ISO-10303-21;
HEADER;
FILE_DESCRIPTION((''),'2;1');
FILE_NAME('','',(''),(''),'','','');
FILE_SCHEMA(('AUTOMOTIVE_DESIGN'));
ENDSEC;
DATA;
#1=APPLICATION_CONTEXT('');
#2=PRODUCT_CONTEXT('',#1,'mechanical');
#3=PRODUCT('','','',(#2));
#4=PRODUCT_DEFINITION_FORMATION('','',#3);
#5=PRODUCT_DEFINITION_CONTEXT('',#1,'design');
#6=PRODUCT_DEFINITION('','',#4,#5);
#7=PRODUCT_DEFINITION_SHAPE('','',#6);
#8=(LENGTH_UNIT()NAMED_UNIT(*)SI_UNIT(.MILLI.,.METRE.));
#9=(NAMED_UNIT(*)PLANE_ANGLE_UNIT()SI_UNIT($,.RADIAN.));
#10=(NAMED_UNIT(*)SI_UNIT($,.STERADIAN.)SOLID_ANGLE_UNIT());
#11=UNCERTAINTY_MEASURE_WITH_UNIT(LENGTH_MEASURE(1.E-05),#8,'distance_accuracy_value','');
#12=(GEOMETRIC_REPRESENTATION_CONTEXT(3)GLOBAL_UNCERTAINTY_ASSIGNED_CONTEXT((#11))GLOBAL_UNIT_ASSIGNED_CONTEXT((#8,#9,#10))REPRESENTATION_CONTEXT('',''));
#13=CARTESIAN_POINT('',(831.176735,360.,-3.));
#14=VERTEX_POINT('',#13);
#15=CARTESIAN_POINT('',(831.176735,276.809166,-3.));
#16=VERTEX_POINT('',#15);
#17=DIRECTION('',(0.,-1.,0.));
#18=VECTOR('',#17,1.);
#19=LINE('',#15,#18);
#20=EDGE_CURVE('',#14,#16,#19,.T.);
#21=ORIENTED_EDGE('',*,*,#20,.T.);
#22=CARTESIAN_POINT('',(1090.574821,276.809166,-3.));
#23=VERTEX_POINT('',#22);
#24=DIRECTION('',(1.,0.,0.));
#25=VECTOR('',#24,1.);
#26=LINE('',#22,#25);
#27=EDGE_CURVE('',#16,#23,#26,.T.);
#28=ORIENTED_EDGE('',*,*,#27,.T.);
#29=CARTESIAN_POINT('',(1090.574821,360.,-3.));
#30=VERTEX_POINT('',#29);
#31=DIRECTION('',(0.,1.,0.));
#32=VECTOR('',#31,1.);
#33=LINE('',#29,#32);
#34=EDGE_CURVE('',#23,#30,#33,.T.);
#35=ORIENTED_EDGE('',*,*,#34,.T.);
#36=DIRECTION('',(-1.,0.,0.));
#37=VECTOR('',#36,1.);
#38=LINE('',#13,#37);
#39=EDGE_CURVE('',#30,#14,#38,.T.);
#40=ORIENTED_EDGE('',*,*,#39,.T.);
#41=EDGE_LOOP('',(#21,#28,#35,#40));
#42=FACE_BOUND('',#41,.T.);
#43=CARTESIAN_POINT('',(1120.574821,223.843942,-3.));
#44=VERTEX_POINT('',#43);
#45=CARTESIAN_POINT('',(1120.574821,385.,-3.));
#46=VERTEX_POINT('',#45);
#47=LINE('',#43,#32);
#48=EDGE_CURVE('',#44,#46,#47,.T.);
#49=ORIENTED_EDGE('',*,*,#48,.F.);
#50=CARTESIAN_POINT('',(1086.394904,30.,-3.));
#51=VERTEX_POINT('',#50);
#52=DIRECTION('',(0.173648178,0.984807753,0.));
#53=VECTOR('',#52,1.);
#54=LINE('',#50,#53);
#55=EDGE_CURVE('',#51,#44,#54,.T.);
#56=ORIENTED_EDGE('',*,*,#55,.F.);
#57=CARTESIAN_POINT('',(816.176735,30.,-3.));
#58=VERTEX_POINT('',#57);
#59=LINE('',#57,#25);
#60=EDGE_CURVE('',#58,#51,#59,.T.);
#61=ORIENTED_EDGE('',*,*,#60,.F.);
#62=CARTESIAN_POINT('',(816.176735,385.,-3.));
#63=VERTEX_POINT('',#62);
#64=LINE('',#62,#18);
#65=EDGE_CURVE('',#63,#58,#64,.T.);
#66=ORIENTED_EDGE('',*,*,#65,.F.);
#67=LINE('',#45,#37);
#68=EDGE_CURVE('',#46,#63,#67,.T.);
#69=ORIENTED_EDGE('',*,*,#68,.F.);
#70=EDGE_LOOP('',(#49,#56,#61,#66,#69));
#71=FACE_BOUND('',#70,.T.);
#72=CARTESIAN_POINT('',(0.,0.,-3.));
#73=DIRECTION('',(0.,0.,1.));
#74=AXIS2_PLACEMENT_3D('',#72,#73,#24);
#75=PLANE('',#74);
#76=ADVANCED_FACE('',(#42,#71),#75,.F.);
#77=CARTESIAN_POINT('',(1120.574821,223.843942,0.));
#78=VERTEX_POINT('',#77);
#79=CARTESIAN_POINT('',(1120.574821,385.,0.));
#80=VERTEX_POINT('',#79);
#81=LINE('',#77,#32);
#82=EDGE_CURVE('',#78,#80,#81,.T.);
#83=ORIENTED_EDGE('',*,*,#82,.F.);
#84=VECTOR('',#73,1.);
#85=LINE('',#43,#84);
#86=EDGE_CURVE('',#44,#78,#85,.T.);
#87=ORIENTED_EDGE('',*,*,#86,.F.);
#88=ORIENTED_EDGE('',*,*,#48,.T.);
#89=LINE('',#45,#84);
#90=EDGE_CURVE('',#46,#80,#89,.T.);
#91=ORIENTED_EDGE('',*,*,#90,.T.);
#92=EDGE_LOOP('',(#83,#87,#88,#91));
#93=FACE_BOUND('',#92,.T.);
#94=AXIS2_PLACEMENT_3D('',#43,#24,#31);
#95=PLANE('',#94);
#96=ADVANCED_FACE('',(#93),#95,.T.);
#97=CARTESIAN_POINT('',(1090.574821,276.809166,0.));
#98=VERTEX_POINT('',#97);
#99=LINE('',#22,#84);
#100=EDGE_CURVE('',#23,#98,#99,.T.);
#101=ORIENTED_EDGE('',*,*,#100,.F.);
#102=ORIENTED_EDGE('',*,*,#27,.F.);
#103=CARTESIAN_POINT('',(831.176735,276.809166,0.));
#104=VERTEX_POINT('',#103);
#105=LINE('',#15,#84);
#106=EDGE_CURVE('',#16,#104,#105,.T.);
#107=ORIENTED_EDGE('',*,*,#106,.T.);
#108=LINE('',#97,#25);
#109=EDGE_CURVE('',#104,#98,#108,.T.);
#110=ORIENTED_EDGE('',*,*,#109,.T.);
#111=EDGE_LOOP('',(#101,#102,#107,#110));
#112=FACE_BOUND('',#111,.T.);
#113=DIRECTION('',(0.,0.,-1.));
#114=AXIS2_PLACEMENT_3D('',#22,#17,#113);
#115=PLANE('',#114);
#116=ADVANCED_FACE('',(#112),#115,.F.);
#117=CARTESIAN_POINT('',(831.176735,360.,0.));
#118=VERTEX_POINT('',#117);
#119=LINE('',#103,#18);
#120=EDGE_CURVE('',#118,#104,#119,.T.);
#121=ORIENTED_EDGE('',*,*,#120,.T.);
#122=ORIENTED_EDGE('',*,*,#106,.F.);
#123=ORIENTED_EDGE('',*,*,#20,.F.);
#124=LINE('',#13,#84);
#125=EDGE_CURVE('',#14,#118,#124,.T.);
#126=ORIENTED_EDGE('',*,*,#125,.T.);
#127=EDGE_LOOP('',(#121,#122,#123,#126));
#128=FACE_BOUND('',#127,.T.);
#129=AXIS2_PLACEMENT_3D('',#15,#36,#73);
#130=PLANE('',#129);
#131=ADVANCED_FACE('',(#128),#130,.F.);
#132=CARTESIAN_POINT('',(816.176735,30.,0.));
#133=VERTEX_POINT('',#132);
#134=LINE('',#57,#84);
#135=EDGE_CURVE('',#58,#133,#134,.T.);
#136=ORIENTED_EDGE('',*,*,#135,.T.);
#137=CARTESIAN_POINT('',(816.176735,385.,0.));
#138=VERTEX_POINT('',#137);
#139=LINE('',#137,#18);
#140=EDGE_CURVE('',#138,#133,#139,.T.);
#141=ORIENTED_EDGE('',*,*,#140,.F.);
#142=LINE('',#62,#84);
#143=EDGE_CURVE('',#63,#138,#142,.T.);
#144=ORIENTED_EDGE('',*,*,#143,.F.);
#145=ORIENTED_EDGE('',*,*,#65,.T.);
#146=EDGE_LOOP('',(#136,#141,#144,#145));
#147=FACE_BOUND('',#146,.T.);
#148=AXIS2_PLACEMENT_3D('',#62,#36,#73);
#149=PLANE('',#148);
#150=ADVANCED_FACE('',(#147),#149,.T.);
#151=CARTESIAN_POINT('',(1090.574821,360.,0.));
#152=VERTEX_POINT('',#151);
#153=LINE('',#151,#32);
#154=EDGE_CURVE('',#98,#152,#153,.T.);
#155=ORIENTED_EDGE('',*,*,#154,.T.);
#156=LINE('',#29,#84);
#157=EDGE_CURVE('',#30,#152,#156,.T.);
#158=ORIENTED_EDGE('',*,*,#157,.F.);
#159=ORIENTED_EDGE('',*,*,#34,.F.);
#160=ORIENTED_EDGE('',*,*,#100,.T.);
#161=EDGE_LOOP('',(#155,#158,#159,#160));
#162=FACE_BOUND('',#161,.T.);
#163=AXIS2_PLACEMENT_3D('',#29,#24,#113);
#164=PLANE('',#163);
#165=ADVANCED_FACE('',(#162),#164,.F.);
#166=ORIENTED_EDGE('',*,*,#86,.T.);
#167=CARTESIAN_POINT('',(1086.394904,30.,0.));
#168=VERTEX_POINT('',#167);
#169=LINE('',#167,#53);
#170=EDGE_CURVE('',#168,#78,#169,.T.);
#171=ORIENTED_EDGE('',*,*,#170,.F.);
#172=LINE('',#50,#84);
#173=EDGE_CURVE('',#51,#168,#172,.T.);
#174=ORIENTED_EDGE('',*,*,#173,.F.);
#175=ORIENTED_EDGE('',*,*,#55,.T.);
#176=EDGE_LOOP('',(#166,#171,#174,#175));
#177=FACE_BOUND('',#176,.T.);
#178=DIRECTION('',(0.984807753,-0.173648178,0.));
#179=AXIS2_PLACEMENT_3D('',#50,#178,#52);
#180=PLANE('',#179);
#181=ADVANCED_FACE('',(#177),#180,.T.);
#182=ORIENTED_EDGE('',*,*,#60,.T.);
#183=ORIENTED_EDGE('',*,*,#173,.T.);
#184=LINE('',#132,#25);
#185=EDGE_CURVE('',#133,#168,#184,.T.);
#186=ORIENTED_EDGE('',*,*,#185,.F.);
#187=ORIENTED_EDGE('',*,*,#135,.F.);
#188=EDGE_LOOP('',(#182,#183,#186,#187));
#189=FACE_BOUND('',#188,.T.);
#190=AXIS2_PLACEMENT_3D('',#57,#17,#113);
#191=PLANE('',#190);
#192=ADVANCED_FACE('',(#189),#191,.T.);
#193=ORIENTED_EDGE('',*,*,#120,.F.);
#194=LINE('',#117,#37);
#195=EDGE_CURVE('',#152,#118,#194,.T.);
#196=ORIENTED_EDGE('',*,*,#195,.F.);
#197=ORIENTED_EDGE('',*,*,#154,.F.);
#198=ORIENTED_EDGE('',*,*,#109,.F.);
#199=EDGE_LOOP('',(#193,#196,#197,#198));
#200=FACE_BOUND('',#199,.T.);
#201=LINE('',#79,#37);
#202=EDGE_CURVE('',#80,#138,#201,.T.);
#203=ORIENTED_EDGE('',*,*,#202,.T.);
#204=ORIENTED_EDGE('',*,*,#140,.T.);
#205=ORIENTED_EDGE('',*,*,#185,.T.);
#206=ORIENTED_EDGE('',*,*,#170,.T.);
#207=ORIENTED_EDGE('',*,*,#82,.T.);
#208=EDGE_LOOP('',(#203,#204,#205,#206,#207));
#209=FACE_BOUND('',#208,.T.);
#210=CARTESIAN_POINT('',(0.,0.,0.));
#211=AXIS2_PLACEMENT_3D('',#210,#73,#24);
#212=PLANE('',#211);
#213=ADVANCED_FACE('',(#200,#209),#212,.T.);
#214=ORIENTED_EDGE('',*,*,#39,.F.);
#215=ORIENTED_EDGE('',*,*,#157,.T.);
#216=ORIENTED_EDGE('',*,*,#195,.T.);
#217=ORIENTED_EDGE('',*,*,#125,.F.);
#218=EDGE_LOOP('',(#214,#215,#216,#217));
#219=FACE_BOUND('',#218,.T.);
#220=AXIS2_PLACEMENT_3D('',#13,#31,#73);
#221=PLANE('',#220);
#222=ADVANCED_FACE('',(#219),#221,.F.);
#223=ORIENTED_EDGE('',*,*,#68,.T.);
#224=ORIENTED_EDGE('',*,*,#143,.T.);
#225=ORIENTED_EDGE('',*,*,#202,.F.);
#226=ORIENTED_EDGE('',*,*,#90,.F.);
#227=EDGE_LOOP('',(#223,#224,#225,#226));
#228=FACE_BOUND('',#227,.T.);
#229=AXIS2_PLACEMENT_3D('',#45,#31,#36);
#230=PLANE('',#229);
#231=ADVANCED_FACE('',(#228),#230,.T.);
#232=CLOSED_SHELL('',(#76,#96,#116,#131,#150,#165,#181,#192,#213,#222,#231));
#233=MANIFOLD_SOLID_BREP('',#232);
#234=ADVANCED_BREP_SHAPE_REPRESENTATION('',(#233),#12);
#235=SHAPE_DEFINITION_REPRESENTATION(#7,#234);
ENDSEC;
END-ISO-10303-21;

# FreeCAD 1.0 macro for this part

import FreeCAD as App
import Part
import Sketcher
Q = App.Units.Quantity


def add_polygon(sketch, points):
    """Adds a closed chain of lines whose ends are joined by coincident constraints."""
    first, n = sketch.GeometryCount, len(points)
    for a, b in zip(points, points[1:] + points[:1]):
        sketch.addGeometry(Part.LineSegment(App.Vector(*a, 0), App.Vector(*b, 0)), False)
    for i in range(n):
        sketch.addConstraint(Sketcher.Constraint("Coincident", first + i, 2, first + (i + 1) % n, 1))

doc = App.newDocument("Part")
body = doc.addObject("PartDesign::Body", "Body")

# Sketch on XY plane
sketch1 = doc.addObject("Sketcher::SketchObject", "Sketch")
body.addObject(sketch1)
sketch1.AttachmentSupport = (doc.XY_Plane, [""])
sketch1.MapMode = "FlatFace"
add_polygon(sketch1, [(816, 30), (1086, 30), (1121, 224), (1121, 385), (816, 385)])  # lines 0-4
add_polygon(sketch1, [(1091, 277), (831, 277), (831, 360), (1091, 360)])  # lines 5-8
sketch1.addConstraint([
    Sketcher.Constraint("Horizontal", 0),
    Sketcher.Constraint("Vertical", 2),
    Sketcher.Constraint("Horizontal", 3),
    Sketcher.Constraint("Vertical", 4),
    Sketcher.Constraint("Horizontal", 5),
    Sketcher.Constraint("Vertical", 6),
    Sketcher.Constraint("Horizontal", 7),
    Sketcher.Constraint("Vertical", 8),
    Sketcher.Constraint("DistanceY", 4, 2, 4, 1, Q("355 mm")),
    Sketcher.Constraint("Angle", 1, Q("80 deg")),
    Sketcher.Constraint("DistanceY", -1, 1, 0, 2, Q("30 mm")),
    Sketcher.Constraint("DistanceY", -1, 1, 6, 2, Q("360 mm")),
    Sketcher.Constraint("DistanceX", 3, 2, 5, 2, Q("15 mm")),
    Sketcher.Constraint("DistanceX", 7, 2, 2, 2, Q("30 mm")),
    Sketcher.Constraint("DistanceX", 0, 1, 0, 2, Q("270.21817 mm")),
    Sketcher.Constraint("DistanceY", 2, 1, 2, 2, Q("161.156058 mm")),
    Sketcher.Constraint("DistanceY", 6, 1, 6, 2, Q("83.190834 mm")),
    Sketcher.Constraint("DistanceX", -1, 1, 1, 2, Q("1120.574821 mm")),
])
pad1 = doc.addObject("PartDesign::Pad", "Pad")
body.addObject(pad1)
pad1.Profile = sketch1
pad1.Length = 3
pad1.Reversed = True

doc.recompute()
